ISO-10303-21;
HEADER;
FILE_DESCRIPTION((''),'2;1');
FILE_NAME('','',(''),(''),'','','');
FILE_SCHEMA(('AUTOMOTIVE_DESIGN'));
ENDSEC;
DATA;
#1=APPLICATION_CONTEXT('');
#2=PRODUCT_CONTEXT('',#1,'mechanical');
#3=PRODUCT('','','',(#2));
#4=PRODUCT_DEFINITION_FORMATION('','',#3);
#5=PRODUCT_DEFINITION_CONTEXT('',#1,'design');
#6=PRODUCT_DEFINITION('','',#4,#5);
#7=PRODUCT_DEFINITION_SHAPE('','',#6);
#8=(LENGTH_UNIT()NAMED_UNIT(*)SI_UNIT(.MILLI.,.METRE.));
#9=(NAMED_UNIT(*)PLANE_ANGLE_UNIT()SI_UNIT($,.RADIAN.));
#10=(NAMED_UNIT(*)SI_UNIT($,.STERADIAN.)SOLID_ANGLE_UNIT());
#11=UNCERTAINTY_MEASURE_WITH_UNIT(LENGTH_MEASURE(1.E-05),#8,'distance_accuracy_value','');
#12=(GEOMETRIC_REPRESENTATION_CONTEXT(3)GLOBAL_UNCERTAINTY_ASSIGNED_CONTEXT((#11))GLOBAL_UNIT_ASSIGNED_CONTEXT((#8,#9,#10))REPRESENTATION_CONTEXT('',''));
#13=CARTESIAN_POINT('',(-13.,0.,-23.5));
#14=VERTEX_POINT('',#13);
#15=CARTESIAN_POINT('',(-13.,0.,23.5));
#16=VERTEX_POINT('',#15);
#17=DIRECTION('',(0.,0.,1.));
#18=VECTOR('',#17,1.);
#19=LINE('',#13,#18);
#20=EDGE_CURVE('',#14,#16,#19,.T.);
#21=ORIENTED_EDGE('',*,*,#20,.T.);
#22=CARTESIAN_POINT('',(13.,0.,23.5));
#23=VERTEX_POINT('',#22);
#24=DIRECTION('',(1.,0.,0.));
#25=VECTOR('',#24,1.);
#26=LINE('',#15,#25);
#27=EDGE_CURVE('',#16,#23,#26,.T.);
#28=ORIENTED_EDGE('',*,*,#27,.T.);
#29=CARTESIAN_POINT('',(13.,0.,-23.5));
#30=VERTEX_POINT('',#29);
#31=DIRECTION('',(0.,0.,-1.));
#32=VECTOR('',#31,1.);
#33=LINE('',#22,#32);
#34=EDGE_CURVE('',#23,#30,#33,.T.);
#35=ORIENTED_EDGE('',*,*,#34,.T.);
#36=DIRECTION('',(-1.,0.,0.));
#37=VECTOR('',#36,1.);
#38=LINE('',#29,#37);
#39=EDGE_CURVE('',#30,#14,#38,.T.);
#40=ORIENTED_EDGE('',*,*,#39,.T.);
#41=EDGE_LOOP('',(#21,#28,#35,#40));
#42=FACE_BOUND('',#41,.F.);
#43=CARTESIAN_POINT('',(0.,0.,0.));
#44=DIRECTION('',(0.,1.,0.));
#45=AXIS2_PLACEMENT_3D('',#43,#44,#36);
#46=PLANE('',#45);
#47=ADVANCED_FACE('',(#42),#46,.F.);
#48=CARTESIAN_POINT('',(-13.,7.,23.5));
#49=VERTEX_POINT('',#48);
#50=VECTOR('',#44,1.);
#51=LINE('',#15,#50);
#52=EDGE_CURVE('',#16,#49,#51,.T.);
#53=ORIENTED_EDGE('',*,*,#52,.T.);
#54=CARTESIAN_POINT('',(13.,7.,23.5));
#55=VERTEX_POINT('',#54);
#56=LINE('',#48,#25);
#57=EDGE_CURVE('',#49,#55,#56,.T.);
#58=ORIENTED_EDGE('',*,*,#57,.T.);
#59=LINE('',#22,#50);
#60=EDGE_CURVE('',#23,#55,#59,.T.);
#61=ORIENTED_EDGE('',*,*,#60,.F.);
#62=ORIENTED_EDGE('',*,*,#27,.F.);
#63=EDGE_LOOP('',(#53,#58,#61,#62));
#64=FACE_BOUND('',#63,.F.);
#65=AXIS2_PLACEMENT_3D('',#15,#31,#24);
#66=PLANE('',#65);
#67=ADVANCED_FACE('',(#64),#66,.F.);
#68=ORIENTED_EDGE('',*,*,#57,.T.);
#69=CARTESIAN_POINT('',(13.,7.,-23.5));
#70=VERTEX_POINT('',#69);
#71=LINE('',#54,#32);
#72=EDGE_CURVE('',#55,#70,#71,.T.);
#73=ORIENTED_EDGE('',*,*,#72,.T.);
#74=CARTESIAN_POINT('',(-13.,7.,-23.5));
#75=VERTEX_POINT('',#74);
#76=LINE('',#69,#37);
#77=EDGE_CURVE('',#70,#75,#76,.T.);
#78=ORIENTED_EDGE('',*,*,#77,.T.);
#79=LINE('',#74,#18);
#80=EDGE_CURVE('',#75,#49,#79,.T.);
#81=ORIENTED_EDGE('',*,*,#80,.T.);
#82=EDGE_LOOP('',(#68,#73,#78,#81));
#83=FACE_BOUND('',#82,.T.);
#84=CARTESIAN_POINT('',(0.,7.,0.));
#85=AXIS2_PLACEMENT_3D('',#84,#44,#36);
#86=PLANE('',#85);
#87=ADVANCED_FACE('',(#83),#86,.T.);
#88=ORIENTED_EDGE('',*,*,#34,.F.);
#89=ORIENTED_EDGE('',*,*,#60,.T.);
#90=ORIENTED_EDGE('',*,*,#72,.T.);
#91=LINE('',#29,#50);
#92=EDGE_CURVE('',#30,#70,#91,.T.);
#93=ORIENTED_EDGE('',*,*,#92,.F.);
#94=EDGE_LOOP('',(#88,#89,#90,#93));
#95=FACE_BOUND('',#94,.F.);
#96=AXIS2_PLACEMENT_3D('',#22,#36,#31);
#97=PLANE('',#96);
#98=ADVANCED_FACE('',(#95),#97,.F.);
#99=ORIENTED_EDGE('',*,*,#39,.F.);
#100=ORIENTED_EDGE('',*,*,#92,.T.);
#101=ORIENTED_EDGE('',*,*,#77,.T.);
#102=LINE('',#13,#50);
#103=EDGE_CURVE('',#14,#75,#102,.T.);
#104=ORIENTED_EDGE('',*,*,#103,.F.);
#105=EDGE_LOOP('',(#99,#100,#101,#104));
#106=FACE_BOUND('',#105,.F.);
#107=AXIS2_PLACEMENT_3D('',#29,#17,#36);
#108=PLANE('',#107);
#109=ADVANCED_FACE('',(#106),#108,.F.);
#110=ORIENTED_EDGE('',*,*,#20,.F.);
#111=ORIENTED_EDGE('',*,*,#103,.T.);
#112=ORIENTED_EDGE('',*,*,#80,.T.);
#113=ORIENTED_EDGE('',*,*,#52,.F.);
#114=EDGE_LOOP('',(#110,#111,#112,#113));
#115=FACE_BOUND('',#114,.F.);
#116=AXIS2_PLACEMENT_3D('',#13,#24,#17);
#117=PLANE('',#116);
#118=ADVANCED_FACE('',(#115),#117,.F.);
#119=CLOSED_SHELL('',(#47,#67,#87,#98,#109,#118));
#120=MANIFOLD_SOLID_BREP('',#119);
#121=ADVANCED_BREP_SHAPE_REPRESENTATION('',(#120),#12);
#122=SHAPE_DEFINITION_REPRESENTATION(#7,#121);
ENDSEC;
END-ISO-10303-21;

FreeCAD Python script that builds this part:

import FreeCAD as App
import Part
import Sketcher
from FreeCAD import Vector

doc = App.newDocument("Part")
params = doc.addObject("Spreadsheet::Sheet", "Params")
for row, (alias, value) in enumerate([
    ("sketch1_width", "26 mm"),
    ("sketch1_height", "47 mm"),
    ("pad1_length", "7 mm"),
], start=1):
    params.set(f"A{row}", alias)
    params.set(f"B{row}", "=" + value)
    params.setAlias(f"B{row}", alias)

body = doc.addObject("PartDesign::Body", "Body")

sketch1 = body.newObject("Sketcher::SketchObject", "Sketch")
sketch1.AttachmentSupport = (doc.getObject("XZ_Plane"), [""])
sketch1.MapMode = "FlatFace"
sketch1.addGeometry([
    Part.LineSegment(Vector(-13, -23.5, 0), Vector(-13, 23.5, 0)),
    Part.LineSegment(Vector(-13, 23.5, 0), Vector(13, 23.5, 0)),
    Part.LineSegment(Vector(13, 23.5, 0), Vector(13, -23.5, 0)),
    Part.LineSegment(Vector(13, -23.5, 0), Vector(-13, -23.5, 0)),
], False)
sketch1.addConstraint([
    Sketcher.Constraint("Coincident", 0, 2, 1, 1),
    Sketcher.Constraint("Coincident", 1, 2, 2, 1),
    Sketcher.Constraint("Coincident", 2, 2, 3, 1),
    Sketcher.Constraint("Coincident", 3, 2, 0, 1),
    Sketcher.Constraint("Vertical", 0),
    Sketcher.Constraint("Horizontal", 1),
    Sketcher.Constraint("Vertical", 2),
    Sketcher.Constraint("Horizontal", 3),
    Sketcher.Constraint("Symmetric", 0, 2, 2, 2, -1, 1),
    Sketcher.Constraint("DistanceX", 1, 1, 1, 2, 26.0),
    Sketcher.Constraint("DistanceY", 0, 1, 0, 2, 47.0),
])
sketch1.setExpression("Constraints[9]", "Params.sketch1_width")
sketch1.setExpression("Constraints[10]", "Params.sketch1_height")
pad1 = body.newObject("PartDesign::Pad", "Pad")
pad1.Profile = sketch1
pad1.setExpression("Length", "Params.pad1_length")
pad1.Reversed = True

doc.recompute()
